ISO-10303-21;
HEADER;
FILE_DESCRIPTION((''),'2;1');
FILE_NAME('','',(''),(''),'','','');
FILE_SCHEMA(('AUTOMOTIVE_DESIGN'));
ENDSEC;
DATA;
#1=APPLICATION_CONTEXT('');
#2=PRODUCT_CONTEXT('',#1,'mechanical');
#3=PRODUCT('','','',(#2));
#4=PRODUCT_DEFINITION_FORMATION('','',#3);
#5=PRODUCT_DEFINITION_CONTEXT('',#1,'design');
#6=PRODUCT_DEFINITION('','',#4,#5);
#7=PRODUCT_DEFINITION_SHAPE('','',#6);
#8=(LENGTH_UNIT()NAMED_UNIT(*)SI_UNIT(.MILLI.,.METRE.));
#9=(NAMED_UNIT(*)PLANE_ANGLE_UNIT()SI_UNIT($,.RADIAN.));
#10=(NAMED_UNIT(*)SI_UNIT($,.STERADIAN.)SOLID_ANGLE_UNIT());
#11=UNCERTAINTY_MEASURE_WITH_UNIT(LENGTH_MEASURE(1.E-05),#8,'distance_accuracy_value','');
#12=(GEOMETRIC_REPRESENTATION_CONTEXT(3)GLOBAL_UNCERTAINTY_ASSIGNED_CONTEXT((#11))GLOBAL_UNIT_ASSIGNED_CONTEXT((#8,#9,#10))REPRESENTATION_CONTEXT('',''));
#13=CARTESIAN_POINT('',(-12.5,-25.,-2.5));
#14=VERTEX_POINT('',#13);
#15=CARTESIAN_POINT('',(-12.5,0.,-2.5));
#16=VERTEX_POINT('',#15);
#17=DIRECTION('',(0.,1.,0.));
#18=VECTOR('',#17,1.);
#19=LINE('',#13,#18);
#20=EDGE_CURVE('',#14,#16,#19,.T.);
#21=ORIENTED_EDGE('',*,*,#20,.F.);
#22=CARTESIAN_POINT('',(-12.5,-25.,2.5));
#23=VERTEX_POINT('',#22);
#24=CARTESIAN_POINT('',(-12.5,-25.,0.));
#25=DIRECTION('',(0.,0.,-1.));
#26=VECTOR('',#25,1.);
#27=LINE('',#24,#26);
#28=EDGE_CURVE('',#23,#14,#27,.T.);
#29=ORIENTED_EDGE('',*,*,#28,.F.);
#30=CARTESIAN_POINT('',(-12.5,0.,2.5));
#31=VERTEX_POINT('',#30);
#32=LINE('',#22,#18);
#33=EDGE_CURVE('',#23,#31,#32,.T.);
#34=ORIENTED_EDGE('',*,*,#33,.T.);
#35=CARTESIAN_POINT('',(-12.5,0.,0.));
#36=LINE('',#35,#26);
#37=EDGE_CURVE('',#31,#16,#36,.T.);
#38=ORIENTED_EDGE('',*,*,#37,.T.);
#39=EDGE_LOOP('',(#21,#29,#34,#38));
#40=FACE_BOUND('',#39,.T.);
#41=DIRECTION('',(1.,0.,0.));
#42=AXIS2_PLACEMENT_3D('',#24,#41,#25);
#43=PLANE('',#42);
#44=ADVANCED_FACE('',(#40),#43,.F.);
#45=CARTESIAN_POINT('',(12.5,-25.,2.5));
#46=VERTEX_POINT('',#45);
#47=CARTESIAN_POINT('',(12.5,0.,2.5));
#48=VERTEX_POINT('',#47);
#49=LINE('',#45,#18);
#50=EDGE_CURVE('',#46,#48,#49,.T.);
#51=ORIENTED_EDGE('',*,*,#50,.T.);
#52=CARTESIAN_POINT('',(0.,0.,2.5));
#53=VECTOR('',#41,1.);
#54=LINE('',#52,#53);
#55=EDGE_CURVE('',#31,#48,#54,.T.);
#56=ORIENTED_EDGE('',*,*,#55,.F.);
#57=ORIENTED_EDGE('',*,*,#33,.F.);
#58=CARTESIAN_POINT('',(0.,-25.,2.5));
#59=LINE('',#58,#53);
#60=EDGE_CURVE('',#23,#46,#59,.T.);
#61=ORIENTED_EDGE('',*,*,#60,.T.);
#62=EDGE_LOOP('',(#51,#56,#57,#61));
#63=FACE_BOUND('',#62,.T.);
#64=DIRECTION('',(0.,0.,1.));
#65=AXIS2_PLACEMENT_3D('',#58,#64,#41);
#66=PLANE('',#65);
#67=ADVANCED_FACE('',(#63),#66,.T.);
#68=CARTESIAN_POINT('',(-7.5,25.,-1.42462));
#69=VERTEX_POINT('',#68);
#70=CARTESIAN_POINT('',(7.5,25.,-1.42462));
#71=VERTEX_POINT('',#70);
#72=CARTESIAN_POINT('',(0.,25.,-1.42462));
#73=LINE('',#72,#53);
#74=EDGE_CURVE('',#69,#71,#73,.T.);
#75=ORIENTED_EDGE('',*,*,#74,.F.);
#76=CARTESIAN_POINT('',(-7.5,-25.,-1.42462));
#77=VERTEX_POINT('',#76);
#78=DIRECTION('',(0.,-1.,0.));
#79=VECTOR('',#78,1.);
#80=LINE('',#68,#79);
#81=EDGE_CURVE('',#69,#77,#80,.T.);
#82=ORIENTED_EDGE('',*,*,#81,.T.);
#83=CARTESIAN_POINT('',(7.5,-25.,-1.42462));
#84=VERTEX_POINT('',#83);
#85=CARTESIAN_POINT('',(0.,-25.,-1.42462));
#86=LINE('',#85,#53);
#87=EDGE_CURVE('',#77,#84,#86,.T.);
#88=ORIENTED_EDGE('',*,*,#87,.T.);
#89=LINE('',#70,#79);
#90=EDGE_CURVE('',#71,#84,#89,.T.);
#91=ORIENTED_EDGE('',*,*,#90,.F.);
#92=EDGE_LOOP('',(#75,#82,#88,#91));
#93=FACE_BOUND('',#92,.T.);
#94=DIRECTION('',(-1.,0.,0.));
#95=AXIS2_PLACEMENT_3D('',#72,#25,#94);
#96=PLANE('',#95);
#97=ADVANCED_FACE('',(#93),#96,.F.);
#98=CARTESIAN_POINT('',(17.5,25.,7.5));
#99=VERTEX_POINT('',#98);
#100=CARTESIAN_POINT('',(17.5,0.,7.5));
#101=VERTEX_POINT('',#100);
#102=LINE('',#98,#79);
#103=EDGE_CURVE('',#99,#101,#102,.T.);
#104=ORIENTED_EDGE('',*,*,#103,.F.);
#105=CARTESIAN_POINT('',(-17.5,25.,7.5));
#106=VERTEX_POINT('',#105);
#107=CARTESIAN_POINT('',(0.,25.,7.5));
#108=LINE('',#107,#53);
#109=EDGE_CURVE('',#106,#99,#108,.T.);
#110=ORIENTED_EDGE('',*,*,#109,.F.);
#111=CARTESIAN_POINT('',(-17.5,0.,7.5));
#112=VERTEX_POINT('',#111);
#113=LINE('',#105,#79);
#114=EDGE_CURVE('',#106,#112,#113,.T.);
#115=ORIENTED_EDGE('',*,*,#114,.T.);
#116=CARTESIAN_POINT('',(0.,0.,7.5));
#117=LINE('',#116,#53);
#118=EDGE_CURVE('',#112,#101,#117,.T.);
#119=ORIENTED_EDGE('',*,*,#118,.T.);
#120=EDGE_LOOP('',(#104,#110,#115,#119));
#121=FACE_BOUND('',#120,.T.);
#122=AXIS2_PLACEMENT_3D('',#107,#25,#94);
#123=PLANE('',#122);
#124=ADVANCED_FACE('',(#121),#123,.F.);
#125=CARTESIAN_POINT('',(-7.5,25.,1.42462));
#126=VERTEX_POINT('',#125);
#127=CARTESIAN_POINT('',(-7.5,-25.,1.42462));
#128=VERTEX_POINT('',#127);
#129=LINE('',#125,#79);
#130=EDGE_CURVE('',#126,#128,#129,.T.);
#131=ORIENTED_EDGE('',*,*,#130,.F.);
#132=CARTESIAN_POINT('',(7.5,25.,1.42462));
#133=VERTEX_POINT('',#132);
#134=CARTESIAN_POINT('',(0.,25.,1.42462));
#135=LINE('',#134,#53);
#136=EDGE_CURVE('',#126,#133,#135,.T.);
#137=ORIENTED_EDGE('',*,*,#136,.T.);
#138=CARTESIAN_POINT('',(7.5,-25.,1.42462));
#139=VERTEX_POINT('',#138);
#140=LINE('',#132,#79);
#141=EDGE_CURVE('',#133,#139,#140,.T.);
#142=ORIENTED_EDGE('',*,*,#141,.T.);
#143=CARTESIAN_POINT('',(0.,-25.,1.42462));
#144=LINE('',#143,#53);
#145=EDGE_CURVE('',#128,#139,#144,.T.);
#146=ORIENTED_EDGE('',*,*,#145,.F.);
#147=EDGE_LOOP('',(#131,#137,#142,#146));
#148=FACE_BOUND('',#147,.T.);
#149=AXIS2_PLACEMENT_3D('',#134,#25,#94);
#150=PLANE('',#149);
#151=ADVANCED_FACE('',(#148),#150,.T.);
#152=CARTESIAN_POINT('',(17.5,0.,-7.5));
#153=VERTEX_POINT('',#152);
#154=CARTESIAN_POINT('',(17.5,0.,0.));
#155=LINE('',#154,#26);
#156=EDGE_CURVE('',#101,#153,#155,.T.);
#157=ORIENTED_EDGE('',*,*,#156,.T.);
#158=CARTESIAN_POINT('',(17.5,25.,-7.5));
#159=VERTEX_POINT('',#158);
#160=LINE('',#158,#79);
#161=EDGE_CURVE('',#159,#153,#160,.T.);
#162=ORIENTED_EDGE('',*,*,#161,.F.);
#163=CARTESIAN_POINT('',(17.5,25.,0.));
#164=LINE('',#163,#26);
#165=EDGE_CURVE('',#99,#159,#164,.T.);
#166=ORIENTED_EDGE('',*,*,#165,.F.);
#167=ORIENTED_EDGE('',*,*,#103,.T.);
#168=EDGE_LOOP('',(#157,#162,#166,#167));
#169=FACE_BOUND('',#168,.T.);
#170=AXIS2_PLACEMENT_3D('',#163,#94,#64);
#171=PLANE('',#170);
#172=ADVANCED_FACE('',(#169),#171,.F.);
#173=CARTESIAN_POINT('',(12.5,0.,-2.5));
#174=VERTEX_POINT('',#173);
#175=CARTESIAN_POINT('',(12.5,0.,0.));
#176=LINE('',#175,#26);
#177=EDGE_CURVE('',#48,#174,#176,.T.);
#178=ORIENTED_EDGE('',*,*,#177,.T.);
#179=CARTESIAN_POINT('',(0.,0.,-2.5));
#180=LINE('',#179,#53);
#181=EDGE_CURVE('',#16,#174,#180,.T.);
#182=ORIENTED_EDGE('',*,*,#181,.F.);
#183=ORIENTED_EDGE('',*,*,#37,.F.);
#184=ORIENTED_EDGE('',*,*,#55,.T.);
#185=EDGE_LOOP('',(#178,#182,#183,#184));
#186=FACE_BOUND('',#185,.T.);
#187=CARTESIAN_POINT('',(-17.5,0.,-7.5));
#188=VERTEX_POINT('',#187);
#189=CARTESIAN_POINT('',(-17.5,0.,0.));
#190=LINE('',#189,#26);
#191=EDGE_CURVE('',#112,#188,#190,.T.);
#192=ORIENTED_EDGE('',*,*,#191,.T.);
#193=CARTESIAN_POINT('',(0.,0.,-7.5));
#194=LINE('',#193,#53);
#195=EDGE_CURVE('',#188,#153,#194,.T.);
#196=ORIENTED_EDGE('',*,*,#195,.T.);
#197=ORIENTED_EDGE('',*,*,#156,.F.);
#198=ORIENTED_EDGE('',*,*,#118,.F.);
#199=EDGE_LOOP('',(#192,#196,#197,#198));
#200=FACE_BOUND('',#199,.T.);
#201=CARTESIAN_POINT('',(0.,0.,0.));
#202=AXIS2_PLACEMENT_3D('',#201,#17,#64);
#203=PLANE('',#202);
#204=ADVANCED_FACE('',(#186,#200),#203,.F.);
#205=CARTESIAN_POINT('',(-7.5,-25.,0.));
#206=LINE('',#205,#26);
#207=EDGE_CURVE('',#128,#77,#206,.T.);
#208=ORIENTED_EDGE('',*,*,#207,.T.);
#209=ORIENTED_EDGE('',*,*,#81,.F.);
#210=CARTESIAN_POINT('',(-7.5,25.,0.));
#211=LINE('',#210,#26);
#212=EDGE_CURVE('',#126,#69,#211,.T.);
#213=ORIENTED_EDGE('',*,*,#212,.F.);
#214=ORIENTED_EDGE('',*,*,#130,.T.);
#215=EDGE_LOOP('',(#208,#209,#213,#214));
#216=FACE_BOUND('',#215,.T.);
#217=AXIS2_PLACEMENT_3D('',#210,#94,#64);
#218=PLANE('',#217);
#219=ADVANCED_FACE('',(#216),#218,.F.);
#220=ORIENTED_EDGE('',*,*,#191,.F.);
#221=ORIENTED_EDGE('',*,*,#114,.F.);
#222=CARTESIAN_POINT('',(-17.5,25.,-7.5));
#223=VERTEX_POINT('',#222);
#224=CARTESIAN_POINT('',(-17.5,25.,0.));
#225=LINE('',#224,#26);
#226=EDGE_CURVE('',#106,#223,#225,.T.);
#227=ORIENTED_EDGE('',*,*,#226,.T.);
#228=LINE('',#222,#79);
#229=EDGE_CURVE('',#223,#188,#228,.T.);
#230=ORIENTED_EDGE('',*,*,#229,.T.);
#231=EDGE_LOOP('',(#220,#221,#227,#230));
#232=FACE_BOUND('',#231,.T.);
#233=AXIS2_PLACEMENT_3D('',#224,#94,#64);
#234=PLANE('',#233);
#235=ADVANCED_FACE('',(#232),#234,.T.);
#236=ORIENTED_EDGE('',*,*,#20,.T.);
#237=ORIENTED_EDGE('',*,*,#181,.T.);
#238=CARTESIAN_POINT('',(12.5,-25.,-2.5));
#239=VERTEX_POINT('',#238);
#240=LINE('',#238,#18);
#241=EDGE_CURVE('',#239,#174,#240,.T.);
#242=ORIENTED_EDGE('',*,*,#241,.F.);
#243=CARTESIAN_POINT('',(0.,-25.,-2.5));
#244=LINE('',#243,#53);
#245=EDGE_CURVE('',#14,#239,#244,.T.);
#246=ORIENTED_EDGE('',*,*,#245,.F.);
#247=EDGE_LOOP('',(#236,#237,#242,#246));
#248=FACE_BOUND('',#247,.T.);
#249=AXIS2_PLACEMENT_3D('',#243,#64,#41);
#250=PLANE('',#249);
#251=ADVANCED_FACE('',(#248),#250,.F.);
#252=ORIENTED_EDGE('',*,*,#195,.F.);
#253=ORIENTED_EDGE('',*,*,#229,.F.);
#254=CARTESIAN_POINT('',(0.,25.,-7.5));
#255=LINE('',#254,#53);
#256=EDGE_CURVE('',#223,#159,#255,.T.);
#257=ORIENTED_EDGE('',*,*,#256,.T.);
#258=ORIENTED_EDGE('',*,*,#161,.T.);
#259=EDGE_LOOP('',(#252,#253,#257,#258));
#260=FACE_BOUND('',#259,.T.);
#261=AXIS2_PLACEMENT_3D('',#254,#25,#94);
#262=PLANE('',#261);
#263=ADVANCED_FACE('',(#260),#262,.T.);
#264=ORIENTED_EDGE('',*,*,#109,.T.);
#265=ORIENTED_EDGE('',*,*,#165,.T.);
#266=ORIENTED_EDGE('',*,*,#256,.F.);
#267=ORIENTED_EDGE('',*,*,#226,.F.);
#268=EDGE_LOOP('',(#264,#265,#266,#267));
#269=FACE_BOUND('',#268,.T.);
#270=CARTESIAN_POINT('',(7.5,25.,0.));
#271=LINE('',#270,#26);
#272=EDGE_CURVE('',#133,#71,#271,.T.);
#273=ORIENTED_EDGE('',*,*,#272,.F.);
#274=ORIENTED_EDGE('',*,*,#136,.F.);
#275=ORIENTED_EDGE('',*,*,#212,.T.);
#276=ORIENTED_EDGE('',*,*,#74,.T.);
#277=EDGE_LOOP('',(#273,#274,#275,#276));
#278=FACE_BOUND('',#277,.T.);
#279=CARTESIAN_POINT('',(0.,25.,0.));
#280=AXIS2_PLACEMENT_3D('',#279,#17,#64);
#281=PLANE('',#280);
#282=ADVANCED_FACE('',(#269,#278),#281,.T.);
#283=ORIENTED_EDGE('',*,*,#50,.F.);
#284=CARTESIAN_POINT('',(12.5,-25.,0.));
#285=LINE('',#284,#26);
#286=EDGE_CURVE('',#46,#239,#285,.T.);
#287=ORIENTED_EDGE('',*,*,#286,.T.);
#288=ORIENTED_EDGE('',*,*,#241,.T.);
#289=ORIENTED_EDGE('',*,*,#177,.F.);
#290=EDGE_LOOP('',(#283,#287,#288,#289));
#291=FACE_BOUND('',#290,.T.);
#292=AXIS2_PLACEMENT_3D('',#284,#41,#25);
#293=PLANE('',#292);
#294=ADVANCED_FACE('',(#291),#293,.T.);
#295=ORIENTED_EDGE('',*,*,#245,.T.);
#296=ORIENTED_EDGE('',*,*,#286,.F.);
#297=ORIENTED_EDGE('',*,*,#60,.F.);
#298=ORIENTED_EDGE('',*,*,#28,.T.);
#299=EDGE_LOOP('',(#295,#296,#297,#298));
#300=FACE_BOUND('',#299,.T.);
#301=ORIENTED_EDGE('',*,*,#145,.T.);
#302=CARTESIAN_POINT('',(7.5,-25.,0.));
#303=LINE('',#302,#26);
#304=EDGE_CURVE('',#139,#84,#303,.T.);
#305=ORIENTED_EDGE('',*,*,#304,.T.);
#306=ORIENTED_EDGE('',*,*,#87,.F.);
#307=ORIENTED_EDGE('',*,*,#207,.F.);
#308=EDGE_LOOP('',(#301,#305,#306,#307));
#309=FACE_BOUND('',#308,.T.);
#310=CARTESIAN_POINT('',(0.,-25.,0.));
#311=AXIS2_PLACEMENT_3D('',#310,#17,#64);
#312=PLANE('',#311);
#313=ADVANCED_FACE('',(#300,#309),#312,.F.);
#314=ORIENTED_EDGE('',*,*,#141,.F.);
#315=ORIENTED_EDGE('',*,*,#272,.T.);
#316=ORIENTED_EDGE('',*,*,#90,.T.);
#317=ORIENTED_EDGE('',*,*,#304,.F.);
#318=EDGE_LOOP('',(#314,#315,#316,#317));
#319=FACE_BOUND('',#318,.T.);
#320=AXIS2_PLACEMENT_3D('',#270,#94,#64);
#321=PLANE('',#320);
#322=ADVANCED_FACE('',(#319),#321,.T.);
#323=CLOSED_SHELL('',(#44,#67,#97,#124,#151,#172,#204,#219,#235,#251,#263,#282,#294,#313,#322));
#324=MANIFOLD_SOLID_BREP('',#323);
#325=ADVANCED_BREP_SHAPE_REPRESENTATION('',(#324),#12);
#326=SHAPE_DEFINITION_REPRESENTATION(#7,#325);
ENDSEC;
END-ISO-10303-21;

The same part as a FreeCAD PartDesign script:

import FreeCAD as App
import Part
import Sketcher
from FreeCAD import Vector

doc = App.newDocument("Part")
body = doc.addObject("PartDesign::Body", "Body")

sketch1 = body.newObject("Sketcher::SketchObject", "Sketch")
sketch1.AttachmentSupport = (doc.getObject("XZ_Plane"), [""])
sketch1.MapMode = "FlatFace"
sketch1.addGeometry(Part.LineSegment(Vector(-17.5, -7.5, 0), Vector(-17.5, 7.5, 0)), False)
sketch1.addGeometry(Part.LineSegment(Vector(-17.5, 7.5, 0), Vector(17.5, 7.5, 0)), False)
sketch1.addGeometry(Part.LineSegment(Vector(17.5, 7.5, 0), Vector(17.5, -7.5, 0)), False)
sketch1.addGeometry(Part.LineSegment(Vector(17.5, -7.5, 0), Vector(-17.5, -7.5, 0)), False)
sketch1.addGeometry(Part.LineSegment(Vector(7.5, 1.42462, 0), Vector(-7.5, 1.42462, 0)), False)
sketch1.addGeometry(Part.LineSegment(Vector(-7.5, 1.42462, 0), Vector(-7.5, -1.42462, 0)), False)
sketch1.addGeometry(Part.LineSegment(Vector(-7.5, -1.42462, 0), Vector(7.5, -1.42462, 0)), False)
sketch1.addGeometry(Part.LineSegment(Vector(7.5, -1.42462, 0), Vector(7.5, 1.42462, 0)), False)
sketch1.addConstraint(Sketcher.Constraint("Coincident", 0, 2, 1, 1))
sketch1.addConstraint(Sketcher.Constraint("Coincident", 1, 2, 2, 1))
sketch1.addConstraint(Sketcher.Constraint("Coincident", 2, 2, 3, 1))
sketch1.addConstraint(Sketcher.Constraint("Coincident", 3, 2, 0, 1))
sketch1.addConstraint(Sketcher.Constraint("Coincident", 4, 2, 5, 1))
sketch1.addConstraint(Sketcher.Constraint("Coincident", 5, 2, 6, 1))
sketch1.addConstraint(Sketcher.Constraint("Coincident", 6, 2, 7, 1))
sketch1.addConstraint(Sketcher.Constraint("Coincident", 7, 2, 4, 1))
sketch1.addConstraint(Sketcher.Constraint("Vertical", 0))
sketch1.addConstraint(Sketcher.Constraint("Horizontal", 1))
sketch1.addConstraint(Sketcher.Constraint("Vertical", 2))
sketch1.addConstraint(Sketcher.Constraint("Horizontal", 3))
sketch1.addConstraint(Sketcher.Constraint("Horizontal", 4))
sketch1.addConstraint(Sketcher.Constraint("Vertical", 5))
sketch1.addConstraint(Sketcher.Constraint("Horizontal", 6))
sketch1.addConstraint(Sketcher.Constraint("Vertical", 7))
sketch1.addConstraint(Sketcher.Constraint("Symmetric", 0, 2, 2, 2, -1, 1))
sketch1.addConstraint(Sketcher.Constraint("Symmetric", 4, 2, 6, 2, -1, 1))
sketch1.addConstraint(Sketcher.Constraint("Equal", 6, 0))
sketch1.addConstraint(Sketcher.Constraint("DistanceX", 1, 1, 1, 2, 35.0))
sketch1.addConstraint(Sketcher.Constraint("DistanceX", 4, 2, 4, 1, 15.0))
sketch1.addConstraint(Sketcher.Constraint("DistanceY", 5, 2, 5, 1, 2.84924))
pad1 = body.newObject("PartDesign::Pad", "Pad")
pad1.Profile = sketch1
pad1.Length = 25
pad1.Reversed = True

sketch2 = body.newObject("Sketcher::SketchObject", "Sketch001")
sketch2.AttachmentSupport = (doc.getObject("XZ_Plane"), [""])
sketch2.MapMode = "FlatFace"
sketch2.addGeometry(Part.LineSegment(Vector(-12.5, -2.5, 0), Vector(-12.5, 2.5, 0)), False)
sketch2.addGeometry(Part.LineSegment(Vector(-12.5, 2.5, 0), Vector(12.5, 2.5, 0)), False)
sketch2.addGeometry(Part.LineSegment(Vector(12.5, 2.5, 0), Vector(12.5, -2.5, 0)), False)
sketch2.addGeometry(Part.LineSegment(Vector(12.5, -2.5, 0), Vector(-12.5, -2.5, 0)), False)
sketch2.addGeometry(Part.LineSegment(Vector(7.5, 1.42462, 0), Vector(-7.5, 1.42462, 0)), False)
sketch2.addGeometry(Part.LineSegment(Vector(-7.5, 1.42462, 0), Vector(-7.5, -1.42462, 0)), False)
sketch2.addGeometry(Part.LineSegment(Vector(-7.5, -1.42462, 0), Vector(7.5, -1.42462, 0)), False)
sketch2.addGeometry(Part.LineSegment(Vector(7.5, -1.42462, 0), Vector(7.5, 1.42462, 0)), False)
sketch2.addConstraint(Sketcher.Constraint("Coincident", 0, 2, 1, 1))
sketch2.addConstraint(Sketcher.Constraint("Coincident", 1, 2, 2, 1))
sketch2.addConstraint(Sketcher.Constraint("Coincident", 2, 2, 3, 1))
sketch2.addConstraint(Sketcher.Constraint("Coincident", 3, 2, 0, 1))
sketch2.addConstraint(Sketcher.Constraint("Coincident", 4, 2, 5, 1))
sketch2.addConstraint(Sketcher.Constraint("Coincident", 5, 2, 6, 1))
sketch2.addConstraint(Sketcher.Constraint("Coincident", 6, 2, 7, 1))
sketch2.addConstraint(Sketcher.Constraint("Coincident", 7, 2, 4, 1))
sketch2.addConstraint(Sketcher.Constraint("Vertical", 0))
sketch2.addConstraint(Sketcher.Constraint("Horizontal", 1))
sketch2.addConstraint(Sketcher.Constraint("Vertical", 2))
sketch2.addConstraint(Sketcher.Constraint("Horizontal", 3))
sketch2.addConstraint(Sketcher.Constraint("Horizontal", 4))
sketch2.addConstraint(Sketcher.Constraint("Vertical", 5))
sketch2.addConstraint(Sketcher.Constraint("Horizontal", 6))
sketch2.addConstraint(Sketcher.Constraint("Vertical", 7))
sketch2.addConstraint(Sketcher.Constraint("Symmetric", 0, 2, 2, 2, -1, 1))
sketch2.addConstraint(Sketcher.Constraint("Symmetric", 4, 2, 6, 2, -1, 1))
sketch2.addConstraint(Sketcher.Constraint("DistanceX", 1, 1, 1, 2, 25.0))
sketch2.addConstraint(Sketcher.Constraint("DistanceX", 4, 2, 4, 1, 15.0))
sketch2.addConstraint(Sketcher.Constraint("DistanceY", 0, 1, 0, 2, 5.0))
sketch2.addConstraint(Sketcher.Constraint("DistanceY", 5, 2, 5, 1, 2.84924))
pad2 = body.newObject("PartDesign::Pad", "Pad001")
pad2.Profile = sketch2
pad2.Length = 25

doc.recompute()
